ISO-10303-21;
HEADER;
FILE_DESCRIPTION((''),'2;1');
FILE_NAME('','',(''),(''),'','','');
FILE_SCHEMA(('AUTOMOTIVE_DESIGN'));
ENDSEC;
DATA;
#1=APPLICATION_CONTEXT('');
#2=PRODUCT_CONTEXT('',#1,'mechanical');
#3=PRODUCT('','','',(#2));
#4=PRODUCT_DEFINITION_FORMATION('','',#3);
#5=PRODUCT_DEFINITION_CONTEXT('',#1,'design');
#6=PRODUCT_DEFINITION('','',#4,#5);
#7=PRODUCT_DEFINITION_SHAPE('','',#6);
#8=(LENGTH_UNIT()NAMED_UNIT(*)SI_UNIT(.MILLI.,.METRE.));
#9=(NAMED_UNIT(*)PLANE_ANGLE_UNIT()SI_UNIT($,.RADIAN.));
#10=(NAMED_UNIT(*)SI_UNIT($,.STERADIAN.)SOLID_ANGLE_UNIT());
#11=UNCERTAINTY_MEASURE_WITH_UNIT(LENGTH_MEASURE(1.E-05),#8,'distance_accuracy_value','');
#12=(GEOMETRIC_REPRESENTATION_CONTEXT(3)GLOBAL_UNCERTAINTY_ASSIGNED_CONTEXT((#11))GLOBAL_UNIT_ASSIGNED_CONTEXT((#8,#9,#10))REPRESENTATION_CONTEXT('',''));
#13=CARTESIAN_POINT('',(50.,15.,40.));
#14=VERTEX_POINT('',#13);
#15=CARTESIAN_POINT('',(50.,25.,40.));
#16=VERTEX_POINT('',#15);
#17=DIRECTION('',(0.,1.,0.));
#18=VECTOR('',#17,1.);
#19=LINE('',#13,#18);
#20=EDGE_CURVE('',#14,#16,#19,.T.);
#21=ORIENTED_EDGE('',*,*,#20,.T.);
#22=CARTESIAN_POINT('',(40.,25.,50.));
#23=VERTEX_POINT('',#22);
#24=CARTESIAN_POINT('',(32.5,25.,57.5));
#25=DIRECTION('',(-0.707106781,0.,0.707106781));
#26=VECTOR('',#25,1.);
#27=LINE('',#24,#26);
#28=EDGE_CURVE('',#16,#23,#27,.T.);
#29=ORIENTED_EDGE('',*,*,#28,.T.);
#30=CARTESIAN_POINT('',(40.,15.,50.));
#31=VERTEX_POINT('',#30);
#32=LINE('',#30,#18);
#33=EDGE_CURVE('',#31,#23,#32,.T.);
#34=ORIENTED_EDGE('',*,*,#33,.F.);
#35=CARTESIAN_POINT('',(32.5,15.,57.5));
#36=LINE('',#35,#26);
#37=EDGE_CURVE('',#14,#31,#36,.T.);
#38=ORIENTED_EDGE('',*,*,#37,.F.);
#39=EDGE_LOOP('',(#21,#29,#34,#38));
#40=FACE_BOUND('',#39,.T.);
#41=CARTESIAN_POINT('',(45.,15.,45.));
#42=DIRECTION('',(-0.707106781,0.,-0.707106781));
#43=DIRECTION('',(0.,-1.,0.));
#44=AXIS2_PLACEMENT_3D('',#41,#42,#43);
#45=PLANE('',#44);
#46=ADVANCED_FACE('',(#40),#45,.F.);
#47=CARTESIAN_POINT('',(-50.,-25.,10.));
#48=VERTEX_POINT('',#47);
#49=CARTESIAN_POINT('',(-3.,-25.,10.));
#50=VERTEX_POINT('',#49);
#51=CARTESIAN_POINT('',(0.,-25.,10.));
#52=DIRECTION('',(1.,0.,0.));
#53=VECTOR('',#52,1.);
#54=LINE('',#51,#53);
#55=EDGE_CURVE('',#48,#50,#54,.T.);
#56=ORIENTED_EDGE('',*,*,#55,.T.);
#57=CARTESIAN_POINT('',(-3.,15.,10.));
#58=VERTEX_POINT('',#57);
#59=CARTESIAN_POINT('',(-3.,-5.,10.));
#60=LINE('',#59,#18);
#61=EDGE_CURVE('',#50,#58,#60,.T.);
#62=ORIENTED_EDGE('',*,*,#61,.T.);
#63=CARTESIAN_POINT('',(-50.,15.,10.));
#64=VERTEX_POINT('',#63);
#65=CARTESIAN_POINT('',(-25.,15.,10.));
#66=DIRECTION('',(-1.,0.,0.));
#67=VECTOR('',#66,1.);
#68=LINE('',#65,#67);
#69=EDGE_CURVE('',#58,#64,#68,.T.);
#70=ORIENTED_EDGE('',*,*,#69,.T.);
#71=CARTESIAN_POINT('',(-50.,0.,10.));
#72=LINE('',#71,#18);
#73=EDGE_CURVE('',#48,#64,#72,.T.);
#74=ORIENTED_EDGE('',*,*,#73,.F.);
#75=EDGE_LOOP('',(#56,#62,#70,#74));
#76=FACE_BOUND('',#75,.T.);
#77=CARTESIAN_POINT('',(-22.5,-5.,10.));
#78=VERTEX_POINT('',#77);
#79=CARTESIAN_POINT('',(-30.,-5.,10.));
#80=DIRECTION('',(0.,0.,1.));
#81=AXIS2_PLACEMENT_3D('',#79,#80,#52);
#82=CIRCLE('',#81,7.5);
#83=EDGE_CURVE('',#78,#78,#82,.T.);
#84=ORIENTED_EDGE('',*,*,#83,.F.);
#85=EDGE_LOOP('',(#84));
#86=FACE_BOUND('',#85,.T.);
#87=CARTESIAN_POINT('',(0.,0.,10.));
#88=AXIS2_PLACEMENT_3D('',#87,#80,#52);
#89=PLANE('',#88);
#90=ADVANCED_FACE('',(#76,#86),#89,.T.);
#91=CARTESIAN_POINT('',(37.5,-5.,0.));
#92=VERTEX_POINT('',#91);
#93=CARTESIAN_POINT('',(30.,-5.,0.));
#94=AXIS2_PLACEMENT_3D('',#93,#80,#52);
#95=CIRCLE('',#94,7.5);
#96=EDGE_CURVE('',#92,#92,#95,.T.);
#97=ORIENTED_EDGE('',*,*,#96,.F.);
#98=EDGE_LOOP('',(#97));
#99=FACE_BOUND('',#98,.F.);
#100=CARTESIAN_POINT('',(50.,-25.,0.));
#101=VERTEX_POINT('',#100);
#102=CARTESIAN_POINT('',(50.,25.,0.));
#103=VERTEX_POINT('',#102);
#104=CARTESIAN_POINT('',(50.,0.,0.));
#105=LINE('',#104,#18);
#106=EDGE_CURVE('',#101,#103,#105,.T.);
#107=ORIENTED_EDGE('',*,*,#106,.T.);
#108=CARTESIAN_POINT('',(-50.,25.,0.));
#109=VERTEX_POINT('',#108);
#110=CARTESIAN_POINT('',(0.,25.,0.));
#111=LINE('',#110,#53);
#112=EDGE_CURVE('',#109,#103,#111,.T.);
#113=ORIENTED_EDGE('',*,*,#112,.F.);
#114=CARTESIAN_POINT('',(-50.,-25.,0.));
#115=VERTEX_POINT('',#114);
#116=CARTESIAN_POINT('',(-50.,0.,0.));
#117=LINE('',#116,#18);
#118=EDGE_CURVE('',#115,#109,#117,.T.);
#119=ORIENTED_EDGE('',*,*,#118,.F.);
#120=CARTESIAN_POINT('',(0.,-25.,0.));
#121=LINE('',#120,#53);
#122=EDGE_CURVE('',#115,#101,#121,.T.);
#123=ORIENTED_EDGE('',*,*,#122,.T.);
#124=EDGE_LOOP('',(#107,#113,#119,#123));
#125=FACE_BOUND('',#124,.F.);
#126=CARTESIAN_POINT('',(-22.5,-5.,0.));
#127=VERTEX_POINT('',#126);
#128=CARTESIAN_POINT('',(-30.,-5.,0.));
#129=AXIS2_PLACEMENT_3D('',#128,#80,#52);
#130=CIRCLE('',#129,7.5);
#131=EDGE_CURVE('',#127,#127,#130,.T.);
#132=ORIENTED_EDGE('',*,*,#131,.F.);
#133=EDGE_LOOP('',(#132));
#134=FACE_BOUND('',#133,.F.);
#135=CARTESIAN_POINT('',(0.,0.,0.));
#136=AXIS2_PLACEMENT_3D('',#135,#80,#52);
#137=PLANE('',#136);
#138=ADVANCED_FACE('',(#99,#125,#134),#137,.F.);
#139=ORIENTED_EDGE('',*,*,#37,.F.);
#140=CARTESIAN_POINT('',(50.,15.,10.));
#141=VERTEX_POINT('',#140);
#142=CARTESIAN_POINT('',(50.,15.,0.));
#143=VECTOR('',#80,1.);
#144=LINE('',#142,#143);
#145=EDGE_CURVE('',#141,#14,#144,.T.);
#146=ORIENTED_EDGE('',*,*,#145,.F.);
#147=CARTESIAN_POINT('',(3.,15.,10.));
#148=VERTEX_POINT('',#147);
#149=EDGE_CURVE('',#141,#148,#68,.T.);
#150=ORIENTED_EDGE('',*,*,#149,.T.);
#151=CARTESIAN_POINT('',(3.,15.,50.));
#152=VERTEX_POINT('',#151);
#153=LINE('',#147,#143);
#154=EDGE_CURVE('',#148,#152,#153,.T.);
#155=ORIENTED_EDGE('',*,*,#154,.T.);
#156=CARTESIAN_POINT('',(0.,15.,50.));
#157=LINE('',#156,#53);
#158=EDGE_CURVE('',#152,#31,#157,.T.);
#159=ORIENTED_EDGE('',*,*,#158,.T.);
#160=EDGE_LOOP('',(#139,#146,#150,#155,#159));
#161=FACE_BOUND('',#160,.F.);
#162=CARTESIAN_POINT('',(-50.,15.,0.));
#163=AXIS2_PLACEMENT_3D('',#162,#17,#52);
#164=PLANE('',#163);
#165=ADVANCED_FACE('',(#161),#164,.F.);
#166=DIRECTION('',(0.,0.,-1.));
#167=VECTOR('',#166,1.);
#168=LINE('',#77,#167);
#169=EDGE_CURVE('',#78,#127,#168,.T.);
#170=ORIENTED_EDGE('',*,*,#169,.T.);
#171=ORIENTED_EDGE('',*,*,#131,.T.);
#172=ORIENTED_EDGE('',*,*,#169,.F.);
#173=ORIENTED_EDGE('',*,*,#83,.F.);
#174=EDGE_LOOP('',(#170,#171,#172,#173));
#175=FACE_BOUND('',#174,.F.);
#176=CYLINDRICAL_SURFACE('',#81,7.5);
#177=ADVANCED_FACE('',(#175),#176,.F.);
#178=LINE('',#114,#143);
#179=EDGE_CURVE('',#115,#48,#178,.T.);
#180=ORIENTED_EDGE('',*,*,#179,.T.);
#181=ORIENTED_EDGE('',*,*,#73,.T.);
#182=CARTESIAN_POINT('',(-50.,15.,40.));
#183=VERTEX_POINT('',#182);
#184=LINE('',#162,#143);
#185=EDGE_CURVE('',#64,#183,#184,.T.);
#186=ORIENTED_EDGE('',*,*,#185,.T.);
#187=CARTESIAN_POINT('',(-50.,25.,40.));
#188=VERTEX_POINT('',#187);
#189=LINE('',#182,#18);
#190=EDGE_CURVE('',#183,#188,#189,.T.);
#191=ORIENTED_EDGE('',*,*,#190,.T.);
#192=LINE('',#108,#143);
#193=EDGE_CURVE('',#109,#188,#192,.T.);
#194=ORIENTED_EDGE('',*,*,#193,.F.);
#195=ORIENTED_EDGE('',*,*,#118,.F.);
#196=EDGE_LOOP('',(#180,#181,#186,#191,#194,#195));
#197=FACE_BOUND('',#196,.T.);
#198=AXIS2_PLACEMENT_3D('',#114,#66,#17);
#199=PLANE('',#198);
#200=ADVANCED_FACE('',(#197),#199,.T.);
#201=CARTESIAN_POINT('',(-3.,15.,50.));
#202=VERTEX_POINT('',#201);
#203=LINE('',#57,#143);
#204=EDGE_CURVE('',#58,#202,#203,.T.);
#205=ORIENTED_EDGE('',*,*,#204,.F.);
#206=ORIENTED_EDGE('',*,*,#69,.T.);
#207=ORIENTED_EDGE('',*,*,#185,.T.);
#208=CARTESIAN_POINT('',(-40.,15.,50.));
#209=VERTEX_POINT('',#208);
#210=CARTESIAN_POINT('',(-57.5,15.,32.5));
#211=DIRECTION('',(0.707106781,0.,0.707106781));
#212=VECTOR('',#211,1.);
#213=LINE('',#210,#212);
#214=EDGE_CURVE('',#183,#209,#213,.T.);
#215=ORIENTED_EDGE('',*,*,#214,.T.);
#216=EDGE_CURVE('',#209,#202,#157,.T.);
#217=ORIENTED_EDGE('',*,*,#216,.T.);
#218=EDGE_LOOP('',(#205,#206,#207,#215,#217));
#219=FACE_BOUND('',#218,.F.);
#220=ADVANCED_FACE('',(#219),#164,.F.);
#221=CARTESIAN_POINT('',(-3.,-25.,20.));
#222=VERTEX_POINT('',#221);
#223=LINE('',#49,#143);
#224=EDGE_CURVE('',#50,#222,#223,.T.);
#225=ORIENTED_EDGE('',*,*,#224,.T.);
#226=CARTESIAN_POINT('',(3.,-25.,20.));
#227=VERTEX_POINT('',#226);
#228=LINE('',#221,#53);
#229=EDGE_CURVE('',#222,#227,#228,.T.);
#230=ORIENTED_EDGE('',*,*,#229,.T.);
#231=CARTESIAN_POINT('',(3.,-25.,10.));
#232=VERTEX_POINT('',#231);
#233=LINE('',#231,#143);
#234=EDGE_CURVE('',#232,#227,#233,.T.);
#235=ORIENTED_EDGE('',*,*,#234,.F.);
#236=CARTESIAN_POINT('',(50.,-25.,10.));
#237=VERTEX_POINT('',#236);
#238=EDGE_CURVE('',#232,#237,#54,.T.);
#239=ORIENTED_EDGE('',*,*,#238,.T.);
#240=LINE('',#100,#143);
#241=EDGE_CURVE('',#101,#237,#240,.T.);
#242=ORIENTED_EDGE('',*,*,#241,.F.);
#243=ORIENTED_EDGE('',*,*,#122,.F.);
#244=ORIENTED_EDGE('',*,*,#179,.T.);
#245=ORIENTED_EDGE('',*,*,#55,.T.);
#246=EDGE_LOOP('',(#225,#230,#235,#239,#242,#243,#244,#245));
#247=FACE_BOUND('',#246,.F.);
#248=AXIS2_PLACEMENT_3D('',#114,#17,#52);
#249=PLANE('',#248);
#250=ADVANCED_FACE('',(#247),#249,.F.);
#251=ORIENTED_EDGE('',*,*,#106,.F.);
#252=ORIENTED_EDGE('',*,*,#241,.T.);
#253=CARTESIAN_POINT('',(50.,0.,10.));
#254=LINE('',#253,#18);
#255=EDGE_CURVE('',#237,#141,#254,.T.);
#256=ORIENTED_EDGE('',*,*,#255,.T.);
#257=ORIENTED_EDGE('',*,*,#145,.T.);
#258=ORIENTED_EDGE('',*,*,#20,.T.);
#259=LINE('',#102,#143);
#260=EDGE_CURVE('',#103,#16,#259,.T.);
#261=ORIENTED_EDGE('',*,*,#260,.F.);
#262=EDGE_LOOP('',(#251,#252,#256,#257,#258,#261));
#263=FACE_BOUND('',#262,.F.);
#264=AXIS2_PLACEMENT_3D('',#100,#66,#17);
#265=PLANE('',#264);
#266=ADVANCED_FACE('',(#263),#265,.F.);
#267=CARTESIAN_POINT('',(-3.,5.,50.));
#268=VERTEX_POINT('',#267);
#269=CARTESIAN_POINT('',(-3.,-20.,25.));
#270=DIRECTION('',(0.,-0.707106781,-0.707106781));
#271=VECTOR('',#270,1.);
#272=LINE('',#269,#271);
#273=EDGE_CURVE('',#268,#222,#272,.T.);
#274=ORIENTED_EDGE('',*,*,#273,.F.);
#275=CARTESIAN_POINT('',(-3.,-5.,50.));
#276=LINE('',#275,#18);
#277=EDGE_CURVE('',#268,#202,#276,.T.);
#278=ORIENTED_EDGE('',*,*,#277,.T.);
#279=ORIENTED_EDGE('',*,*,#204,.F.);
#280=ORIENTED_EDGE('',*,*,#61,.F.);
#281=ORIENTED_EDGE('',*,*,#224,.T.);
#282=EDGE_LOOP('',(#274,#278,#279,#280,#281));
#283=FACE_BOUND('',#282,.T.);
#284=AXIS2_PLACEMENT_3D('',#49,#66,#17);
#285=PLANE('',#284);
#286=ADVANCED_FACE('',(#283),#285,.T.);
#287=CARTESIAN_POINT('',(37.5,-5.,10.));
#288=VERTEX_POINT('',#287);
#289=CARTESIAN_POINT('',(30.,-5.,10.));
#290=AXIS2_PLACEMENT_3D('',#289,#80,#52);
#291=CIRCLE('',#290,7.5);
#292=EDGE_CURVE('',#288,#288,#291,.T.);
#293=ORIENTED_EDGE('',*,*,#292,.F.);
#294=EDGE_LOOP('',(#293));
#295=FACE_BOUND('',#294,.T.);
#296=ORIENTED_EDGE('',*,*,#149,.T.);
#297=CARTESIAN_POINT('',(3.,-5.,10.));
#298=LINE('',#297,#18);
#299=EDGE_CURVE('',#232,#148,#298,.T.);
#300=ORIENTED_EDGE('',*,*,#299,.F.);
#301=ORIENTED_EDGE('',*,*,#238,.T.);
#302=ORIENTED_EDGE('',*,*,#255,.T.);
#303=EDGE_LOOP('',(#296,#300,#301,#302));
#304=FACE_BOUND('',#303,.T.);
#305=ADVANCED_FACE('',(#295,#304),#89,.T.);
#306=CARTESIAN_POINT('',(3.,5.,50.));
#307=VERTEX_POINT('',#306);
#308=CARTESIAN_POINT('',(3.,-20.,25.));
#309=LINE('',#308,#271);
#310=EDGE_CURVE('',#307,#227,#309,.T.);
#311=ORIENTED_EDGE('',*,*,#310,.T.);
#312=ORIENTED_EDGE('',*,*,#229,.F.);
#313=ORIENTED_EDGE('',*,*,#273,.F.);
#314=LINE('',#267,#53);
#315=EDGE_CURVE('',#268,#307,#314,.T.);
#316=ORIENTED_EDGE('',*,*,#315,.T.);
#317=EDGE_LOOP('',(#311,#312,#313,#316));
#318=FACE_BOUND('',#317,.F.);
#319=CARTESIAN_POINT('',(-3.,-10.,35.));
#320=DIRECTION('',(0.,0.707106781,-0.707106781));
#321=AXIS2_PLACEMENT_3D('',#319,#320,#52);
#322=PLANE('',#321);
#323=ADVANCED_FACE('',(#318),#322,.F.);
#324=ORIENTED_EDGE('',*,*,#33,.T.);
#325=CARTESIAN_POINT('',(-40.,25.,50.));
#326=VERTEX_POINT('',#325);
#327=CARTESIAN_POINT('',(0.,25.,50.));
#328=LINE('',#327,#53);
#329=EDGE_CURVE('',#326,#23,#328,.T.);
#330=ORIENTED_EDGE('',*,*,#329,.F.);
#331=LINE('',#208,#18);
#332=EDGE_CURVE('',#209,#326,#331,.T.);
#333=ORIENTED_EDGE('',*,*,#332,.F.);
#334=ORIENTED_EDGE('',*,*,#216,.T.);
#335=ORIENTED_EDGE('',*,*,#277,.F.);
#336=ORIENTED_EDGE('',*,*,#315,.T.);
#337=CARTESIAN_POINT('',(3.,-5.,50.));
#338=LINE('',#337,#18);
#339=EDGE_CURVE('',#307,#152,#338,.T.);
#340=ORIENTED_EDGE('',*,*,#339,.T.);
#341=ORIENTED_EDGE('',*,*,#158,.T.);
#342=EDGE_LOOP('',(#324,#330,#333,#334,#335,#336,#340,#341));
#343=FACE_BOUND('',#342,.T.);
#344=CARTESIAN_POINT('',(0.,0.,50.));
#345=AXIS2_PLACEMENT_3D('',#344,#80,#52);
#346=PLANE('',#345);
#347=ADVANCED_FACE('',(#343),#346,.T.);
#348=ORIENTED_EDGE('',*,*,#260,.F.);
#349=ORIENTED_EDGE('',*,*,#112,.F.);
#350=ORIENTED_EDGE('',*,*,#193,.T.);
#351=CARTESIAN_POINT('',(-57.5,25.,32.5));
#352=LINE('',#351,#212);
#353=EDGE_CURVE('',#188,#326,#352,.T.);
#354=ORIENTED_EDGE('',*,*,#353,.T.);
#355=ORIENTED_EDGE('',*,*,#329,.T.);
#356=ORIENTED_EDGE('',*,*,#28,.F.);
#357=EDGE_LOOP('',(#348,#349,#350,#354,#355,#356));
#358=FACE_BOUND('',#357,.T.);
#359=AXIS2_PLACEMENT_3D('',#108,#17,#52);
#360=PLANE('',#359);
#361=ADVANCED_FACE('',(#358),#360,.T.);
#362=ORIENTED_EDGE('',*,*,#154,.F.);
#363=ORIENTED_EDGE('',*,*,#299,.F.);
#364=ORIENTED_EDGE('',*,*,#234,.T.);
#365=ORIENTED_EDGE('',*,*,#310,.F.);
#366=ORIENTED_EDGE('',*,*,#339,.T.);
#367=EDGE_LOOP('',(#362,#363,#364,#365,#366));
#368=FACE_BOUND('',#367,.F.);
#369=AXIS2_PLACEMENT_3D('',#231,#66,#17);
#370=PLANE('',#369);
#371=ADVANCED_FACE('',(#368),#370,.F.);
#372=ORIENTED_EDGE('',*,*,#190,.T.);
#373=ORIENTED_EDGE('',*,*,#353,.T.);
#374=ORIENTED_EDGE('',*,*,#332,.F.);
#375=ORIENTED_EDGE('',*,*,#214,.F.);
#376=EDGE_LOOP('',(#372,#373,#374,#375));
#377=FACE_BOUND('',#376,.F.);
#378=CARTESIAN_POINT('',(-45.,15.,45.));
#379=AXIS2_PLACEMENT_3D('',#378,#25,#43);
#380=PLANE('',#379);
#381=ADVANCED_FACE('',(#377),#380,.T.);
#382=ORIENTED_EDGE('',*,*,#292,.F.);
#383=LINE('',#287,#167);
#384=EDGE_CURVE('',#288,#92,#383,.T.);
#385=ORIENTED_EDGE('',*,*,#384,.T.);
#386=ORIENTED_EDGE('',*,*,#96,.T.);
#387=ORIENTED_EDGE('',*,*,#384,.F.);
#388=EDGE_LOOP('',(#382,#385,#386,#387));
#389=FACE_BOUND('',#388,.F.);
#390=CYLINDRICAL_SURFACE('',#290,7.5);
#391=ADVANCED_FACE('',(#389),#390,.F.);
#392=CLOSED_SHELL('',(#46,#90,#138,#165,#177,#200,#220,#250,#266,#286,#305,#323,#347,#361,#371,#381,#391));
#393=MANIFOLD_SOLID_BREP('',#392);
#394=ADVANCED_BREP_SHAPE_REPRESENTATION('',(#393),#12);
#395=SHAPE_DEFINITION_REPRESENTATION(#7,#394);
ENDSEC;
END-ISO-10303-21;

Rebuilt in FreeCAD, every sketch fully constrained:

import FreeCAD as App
import Part
import Sketcher

V = App.Vector


def edges_at(feature, points):
    """Names of the edges that pass closest to the given points."""
    edges = feature.Shape.Edges
    near = lambda p: min(range(len(edges)), key=lambda i: edges[i].distToShape(Part.Vertex(*p))[0])
    return sorted({f"Edge{near(p) + 1}" for p in points})


def faces_at(feature, points):
    """Names of the faces that lie closest to the given points."""
    faces = feature.Shape.Faces
    near = lambda p: min(range(len(faces)), key=lambda i: faces[i].distToShape(Part.Vertex(*p))[0])
    return sorted({f"Face{near(p) + 1}" for p in points})


def add_polygon(sketch, points):
    """Adds a closed chain of lines whose ends are joined by coincident constraints."""
    first, n = sketch.GeometryCount, len(points)
    for a, b in zip(points, points[1:] + points[:1]):
        sketch.addGeometry(Part.LineSegment(App.Vector(*a, 0), App.Vector(*b, 0)), False)
    for i in range(n):
        sketch.addConstraint(Sketcher.Constraint("Coincident", first + i, 2, first + (i + 1) % n, 1))

doc = App.newDocument("Part")
params = doc.addObject("Spreadsheet::Sheet", "Params")
for row, (alias, value) in enumerate([
    ("sketch1_width", "100 mm"),
    ("sketch1_height", "50 mm"),
    ("pad1_length", "50 mm"),
    ("thickness_wall", "10 mm"),
    ("sketch2_diameter", "15 mm"),
    ("sketch3_width", "6 mm"),
    ("sketch3_height", "40 mm"),
    ("pad2_length", "40 mm"),
    ("chamfer_size", "10 mm"),
    ("chamfer2_size", "30 mm"),
], start=1):
    params.set(f"A{row}", alias)
    params.set(f"B{row}", "=" + value)
    params.setAlias(f"B{row}", alias)

body = doc.addObject("PartDesign::Body", "Body")

# Sketch on XY plane
sketch1 = doc.addObject("Sketcher::SketchObject", "Sketch")
body.addObject(sketch1)
sketch1.AttachmentSupport = (doc.XY_Plane, [""])
sketch1.MapMode = "FlatFace"
add_polygon(sketch1, [(-50, 25), (-50, -25), (50, -25), (50, 25)])  # lines 0-3
sketch1.addConstraint(Sketcher.Constraint("Vertical", 0))
sketch1.addConstraint(Sketcher.Constraint("Horizontal", 1))
sketch1.addConstraint(Sketcher.Constraint("Vertical", 2))
sketch1.addConstraint(Sketcher.Constraint("Horizontal", 3))
sketch1.addConstraint(Sketcher.Constraint("Symmetric", 0, 2, 2, 2, -1, 1))
sketch1.addConstraint(Sketcher.Constraint("DistanceX", 1, 1, 1, 2, 100.0))
sketch1.addConstraint(Sketcher.Constraint("DistanceY", 0, 2, 0, 1, 50.0))
sketch1.setExpression("Constraints[9]", "Params.sketch1_width")
sketch1.setExpression("Constraints[10]", "Params.sketch1_height")
pad1 = doc.addObject("PartDesign::Pad", "Pad")
body.addObject(pad1)
pad1.Profile = sketch1
pad1.setExpression("Length", "Params.pad1_length")
doc.recompute()

thickness = doc.addObject("PartDesign::Thickness", "Thickness")
body.addObject(thickness)
thickness.Base = (pad1, faces_at(pad1, [
    (50, 0, 25),
    (0, 0, 50),
    (0, -25, 25),
    (-50, 0, 25),
]))
thickness.setExpression("Value", "Params.thickness_wall")
thickness.Reversed = True
thickness.Join = "Arc"

# Sketch on XY plane
sketch2 = doc.addObject("Sketcher::SketchObject", "Sketch001")
body.addObject(sketch2)
sketch2.AttachmentSupport = (doc.XY_Plane, [""])
sketch2.MapMode = "FlatFace"
sketch2.AttachmentOffset = App.Placement(V(0, 0, 10), App.Rotation())
sketch2.addGeometry(Part.Circle(V(-30, -5, 0), V(0, 0, 1), 8), False)
sketch2.addGeometry(Part.Circle(V(30, -5, 0), V(0, 0, 1), 8), False)
sketch2.addConstraint(Sketcher.Constraint("Equal", 0, 1))
sketch2.addConstraint(Sketcher.Constraint("Symmetric", 0, 3, 1, 3, -2))
sketch2.addConstraint(Sketcher.Constraint("Diameter", 0, 15.0))
sketch2.addConstraint(Sketcher.Constraint("DistanceX", 0, 3, -1, 1, 30.0))
sketch2.addConstraint(Sketcher.Constraint("DistanceY", 0, 3, -1, 1, 5.0))
sketch2.setExpression("Constraints[2]", "Params.sketch2_diameter")
pocket1 = doc.addObject("PartDesign::Pocket", "Pocket")
body.addObject(pocket1)
pocket1.Profile = sketch2
pocket1.Type = "ThroughAll"

# Sketch on XY plane
sketch3 = doc.addObject("Sketcher::SketchObject", "Sketch002")
body.addObject(sketch3)
sketch3.AttachmentSupport = (doc.XY_Plane, [""])
sketch3.MapMode = "FlatFace"
sketch3.AttachmentOffset = App.Placement(V(0, 0, 10), App.Rotation())
add_polygon(sketch3, [(-3, 15), (-3, -25), (3, -25), (3, 15)])  # lines 0-3
sketch3.addConstraint(Sketcher.Constraint("Vertical", 0))
sketch3.addConstraint(Sketcher.Constraint("Horizontal", 1))
sketch3.addConstraint(Sketcher.Constraint("Vertical", 2))
sketch3.addConstraint(Sketcher.Constraint("Horizontal", 3))
sketch3.addConstraint(Sketcher.Constraint("DistanceX", 1, 1, 1, 2, 6.0))
sketch3.addConstraint(Sketcher.Constraint("DistanceY", 0, 2, 0, 1, 40.0))
sketch3.addConstraint(Sketcher.Constraint("DistanceX", 0, 2, -1, 1, 3.0))
sketch3.addConstraint(Sketcher.Constraint("DistanceY", 0, 2, -1, 1, 25.0))
sketch3.setExpression("Constraints[8]", "Params.sketch3_width")
sketch3.setExpression("Constraints[9]", "Params.sketch3_height")
pad2 = doc.addObject("PartDesign::Pad", "Pad001")
body.addObject(pad2)
pad2.Profile = sketch3
pad2.setExpression("Length", "Params.pad2_length")
doc.recompute()

chamfer = doc.addObject("PartDesign::Chamfer", "Chamfer")
body.addObject(chamfer)
chamfer.Base = (pad2, edges_at(pad2, [(50, 20, 50), (-50, 20, 50)]))
chamfer.setExpression("Size", "Params.chamfer_size")
doc.recompute()

chamfer2 = doc.addObject("PartDesign::Chamfer", "Chamfer001")
body.addObject(chamfer2)
chamfer2.Base = (chamfer, edges_at(chamfer, [(0, -25, 50)]))
chamfer2.setExpression("Size", "Params.chamfer2_size")

doc.recompute()
